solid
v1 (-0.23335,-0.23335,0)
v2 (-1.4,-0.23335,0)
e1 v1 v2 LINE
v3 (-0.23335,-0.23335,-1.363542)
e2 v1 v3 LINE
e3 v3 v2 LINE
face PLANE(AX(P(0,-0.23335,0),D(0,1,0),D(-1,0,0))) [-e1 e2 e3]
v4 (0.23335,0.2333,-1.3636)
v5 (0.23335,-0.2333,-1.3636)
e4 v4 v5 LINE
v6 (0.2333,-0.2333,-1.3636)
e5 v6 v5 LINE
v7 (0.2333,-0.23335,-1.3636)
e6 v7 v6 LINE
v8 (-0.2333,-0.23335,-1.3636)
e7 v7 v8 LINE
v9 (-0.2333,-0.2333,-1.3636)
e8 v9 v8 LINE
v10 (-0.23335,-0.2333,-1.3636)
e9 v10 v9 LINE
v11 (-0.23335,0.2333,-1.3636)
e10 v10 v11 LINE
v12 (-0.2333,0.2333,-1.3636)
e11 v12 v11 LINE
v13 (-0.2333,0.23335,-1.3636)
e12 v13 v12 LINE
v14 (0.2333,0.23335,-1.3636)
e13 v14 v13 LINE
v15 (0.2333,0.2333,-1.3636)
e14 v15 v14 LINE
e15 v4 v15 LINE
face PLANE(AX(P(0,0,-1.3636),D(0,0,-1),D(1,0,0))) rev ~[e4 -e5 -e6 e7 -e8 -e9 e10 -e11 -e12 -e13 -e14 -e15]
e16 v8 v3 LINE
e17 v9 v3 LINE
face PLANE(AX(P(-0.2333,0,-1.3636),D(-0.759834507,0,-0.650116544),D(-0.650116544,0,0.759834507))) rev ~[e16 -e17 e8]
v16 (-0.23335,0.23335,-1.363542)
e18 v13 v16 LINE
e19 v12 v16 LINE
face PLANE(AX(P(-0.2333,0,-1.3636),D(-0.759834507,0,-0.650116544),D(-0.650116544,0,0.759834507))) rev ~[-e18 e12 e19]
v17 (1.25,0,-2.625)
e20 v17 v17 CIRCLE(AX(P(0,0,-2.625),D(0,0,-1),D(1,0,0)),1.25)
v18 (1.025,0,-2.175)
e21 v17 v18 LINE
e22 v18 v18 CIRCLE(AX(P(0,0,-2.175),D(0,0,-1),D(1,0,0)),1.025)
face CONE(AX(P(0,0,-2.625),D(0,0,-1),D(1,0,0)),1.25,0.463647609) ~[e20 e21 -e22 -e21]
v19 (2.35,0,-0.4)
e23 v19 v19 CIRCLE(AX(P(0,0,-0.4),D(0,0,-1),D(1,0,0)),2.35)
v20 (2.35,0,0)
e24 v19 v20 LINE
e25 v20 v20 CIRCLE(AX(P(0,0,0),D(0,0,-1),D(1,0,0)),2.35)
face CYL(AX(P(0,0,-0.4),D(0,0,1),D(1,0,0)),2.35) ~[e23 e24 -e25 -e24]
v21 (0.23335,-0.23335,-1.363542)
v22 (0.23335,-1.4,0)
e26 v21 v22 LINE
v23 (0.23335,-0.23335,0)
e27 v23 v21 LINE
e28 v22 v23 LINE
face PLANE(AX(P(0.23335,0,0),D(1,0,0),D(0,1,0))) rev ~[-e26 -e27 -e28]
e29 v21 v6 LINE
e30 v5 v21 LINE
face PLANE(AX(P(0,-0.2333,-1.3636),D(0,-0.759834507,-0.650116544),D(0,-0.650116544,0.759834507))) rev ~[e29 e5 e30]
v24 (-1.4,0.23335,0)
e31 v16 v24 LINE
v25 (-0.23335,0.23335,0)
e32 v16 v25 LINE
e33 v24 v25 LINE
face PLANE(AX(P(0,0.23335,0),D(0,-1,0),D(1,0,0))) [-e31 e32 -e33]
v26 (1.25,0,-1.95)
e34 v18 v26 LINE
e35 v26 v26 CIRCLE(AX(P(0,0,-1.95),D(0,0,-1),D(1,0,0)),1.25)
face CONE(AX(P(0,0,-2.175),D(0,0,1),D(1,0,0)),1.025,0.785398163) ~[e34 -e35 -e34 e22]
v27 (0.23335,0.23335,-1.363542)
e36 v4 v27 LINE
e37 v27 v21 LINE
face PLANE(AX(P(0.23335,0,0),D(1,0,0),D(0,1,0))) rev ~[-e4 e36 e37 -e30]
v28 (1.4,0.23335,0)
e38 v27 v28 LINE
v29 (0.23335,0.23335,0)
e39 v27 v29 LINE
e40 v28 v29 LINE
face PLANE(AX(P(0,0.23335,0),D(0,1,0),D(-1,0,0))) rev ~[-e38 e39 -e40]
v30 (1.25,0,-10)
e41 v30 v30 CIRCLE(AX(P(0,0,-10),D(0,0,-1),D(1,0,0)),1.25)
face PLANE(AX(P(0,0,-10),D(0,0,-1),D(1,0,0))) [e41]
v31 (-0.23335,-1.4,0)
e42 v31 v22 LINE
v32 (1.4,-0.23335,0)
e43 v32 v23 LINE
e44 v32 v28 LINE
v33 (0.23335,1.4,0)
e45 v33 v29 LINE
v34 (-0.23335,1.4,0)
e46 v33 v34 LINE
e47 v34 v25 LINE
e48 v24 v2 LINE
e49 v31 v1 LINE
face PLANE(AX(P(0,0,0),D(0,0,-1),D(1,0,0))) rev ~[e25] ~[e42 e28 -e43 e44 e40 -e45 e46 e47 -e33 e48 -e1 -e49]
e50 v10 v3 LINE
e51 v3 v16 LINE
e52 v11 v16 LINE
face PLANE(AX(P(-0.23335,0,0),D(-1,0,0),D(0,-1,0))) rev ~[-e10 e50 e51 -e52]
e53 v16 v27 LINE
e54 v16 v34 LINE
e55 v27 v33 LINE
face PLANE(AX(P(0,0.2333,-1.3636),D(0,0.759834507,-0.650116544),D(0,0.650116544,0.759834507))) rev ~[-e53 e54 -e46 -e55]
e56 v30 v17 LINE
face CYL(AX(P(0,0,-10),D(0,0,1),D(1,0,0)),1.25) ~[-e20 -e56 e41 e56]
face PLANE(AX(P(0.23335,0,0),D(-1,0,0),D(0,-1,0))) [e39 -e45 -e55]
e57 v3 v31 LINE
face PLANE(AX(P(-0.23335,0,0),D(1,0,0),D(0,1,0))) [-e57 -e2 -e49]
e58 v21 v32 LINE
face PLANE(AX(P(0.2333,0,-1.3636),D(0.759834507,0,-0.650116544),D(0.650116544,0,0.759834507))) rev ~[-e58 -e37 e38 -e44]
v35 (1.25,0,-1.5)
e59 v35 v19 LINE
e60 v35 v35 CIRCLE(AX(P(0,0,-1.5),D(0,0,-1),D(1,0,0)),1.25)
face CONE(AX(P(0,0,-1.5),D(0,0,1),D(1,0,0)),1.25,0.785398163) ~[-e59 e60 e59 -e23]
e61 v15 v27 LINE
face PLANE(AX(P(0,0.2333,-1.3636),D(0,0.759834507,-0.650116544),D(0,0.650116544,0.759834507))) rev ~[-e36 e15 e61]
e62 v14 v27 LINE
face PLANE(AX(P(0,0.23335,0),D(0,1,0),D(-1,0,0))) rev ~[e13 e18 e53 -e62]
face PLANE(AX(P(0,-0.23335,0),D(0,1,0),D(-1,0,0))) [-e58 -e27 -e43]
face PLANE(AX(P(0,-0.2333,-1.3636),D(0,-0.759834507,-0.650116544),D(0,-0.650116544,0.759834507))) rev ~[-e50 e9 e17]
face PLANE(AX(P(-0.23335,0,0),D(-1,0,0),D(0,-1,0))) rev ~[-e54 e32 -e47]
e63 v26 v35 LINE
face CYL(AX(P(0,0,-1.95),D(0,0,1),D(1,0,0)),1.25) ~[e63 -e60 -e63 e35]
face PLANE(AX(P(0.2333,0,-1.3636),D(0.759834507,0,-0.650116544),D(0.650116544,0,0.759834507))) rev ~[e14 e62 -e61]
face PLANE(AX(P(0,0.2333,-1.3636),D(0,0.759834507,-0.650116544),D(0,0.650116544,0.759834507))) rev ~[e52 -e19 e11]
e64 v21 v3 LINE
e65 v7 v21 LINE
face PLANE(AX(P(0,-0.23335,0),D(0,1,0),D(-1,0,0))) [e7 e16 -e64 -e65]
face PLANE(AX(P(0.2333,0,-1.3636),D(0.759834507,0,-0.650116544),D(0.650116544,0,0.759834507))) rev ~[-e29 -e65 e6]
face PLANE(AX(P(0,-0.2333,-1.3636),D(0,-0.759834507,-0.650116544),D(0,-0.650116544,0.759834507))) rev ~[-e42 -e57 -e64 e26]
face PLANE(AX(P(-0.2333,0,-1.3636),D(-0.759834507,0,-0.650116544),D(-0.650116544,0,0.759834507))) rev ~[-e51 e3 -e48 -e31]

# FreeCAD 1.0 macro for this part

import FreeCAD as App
import Part
import Sketcher
Q = App.Units.Quantity


def add_polygon(sketch, points):
    """Adds a closed chain of lines whose ends are joined by coincident constraints."""
    first, n = sketch.GeometryCount, len(points)
    for a, b in zip(points, points[1:] + points[:1]):
        sketch.addGeometry(Part.LineSegment(App.Vector(*a, 0), App.Vector(*b, 0)), False)
    for i in range(n):
        sketch.addConstraint(Sketcher.Constraint("Coincident", first + i, 2, first + (i + 1) % n, 1))

doc = App.newDocument("Part")
body = doc.addObject("PartDesign::Body", "Body")

sketch1 = body.newObject("Sketcher::SketchObject", "Sketch")
sketch1.AttachmentSupport = (doc.getObject("XZ_Plane"), [""])
sketch1.MapMode = "FlatFace"
add_polygon(sketch1, [(0, 0), (2.35, 0), (2.35, -0.4), (1.25, -1.5), (1.25, -1.95), (1.02, -2.17), (1.25, -2.62), (1.25, -10), (0, -10)])
sketch1.addConstraint([
    Sketcher.Constraint("Horizontal", 0),
    Sketcher.Constraint("Vertical", 1),
    Sketcher.Constraint("Vertical", 3),
    Sketcher.Constraint("Vertical", 6),
    Sketcher.Constraint("Horizontal", 7),
    Sketcher.Constraint("Vertical", 8),
    Sketcher.Constraint("Coincident", 8, 2, -1, 1),
    Sketcher.Constraint("Parallel", 2, 4),
    Sketcher.Constraint("Vertical", 3, 2, 5, 2),
    Sketcher.Constraint("DistanceY", 8, 1, 8, 2, 10.0),
    Sketcher.Constraint("Angle", 2, Q("-135 deg")),
    Sketcher.Constraint("DistanceX", 0, 1, 0, 2, 2.35),
    Sketcher.Constraint("DistanceX", 7, 2, 7, 1, 1.25),
    Sketcher.Constraint("DistanceY", 3, 2, 3, 1, 0.45),
    Sketcher.Constraint("DistanceY", 2, 2, -1, 1, 1.5),
    Sketcher.Constraint("DistanceY", 5, 2, 4, 2, 0.45),
    Sketcher.Constraint("DistanceX", -1, 1, 4, 2, 1.025),
])
revolution = body.newObject("PartDesign::Revolution", "Revolution")
revolution.Profile = sketch1
revolution.ReferenceAxis = (sketch1, ["V_Axis"])
revolution.Angle = 360

sketch2 = body.newObject("Sketcher::SketchObject", "Sketch001")
sketch2.AttachmentSupport = (doc.getObject("XZ_Plane"), [""])
sketch2.MapMode = "FlatFace"
add_polygon(sketch2, [(0, 0), (1.4, 0), (0.23, -1.36), (0, -1.36)])
sketch2.addConstraint([
    Sketcher.Constraint("Horizontal", 0),
    Sketcher.Constraint("Horizontal", 2),
    Sketcher.Constraint("Vertical", 3),
    Sketcher.Constraint("Coincident", 3, 2, -1, 1),
    Sketcher.Constraint("DistanceX", 0, 1, 0, 2, 1.4),
    Sketcher.Constraint("DistanceX", 2, 2, 2, 1, 0.2333),
    Sketcher.Constraint("DistanceY", 3, 1, 3, 2, 1.3636),
])
pocket1 = body.newObject("PartDesign::Pocket", "Pocket")
pocket1.Profile = sketch2
pocket1.Length = 0.4667
pocket1.Midplane = True
doc.recompute()

polarpattern = body.newObject("PartDesign::PolarPattern", "PolarPattern")
polarpattern.Originals = [pocket1]
polarpattern.Axis = (doc.getObject("Z_Axis"), [""])
polarpattern.Angle = 360
polarpattern.Occurrences = 4
body.Tip = polarpattern

doc.recompute()
